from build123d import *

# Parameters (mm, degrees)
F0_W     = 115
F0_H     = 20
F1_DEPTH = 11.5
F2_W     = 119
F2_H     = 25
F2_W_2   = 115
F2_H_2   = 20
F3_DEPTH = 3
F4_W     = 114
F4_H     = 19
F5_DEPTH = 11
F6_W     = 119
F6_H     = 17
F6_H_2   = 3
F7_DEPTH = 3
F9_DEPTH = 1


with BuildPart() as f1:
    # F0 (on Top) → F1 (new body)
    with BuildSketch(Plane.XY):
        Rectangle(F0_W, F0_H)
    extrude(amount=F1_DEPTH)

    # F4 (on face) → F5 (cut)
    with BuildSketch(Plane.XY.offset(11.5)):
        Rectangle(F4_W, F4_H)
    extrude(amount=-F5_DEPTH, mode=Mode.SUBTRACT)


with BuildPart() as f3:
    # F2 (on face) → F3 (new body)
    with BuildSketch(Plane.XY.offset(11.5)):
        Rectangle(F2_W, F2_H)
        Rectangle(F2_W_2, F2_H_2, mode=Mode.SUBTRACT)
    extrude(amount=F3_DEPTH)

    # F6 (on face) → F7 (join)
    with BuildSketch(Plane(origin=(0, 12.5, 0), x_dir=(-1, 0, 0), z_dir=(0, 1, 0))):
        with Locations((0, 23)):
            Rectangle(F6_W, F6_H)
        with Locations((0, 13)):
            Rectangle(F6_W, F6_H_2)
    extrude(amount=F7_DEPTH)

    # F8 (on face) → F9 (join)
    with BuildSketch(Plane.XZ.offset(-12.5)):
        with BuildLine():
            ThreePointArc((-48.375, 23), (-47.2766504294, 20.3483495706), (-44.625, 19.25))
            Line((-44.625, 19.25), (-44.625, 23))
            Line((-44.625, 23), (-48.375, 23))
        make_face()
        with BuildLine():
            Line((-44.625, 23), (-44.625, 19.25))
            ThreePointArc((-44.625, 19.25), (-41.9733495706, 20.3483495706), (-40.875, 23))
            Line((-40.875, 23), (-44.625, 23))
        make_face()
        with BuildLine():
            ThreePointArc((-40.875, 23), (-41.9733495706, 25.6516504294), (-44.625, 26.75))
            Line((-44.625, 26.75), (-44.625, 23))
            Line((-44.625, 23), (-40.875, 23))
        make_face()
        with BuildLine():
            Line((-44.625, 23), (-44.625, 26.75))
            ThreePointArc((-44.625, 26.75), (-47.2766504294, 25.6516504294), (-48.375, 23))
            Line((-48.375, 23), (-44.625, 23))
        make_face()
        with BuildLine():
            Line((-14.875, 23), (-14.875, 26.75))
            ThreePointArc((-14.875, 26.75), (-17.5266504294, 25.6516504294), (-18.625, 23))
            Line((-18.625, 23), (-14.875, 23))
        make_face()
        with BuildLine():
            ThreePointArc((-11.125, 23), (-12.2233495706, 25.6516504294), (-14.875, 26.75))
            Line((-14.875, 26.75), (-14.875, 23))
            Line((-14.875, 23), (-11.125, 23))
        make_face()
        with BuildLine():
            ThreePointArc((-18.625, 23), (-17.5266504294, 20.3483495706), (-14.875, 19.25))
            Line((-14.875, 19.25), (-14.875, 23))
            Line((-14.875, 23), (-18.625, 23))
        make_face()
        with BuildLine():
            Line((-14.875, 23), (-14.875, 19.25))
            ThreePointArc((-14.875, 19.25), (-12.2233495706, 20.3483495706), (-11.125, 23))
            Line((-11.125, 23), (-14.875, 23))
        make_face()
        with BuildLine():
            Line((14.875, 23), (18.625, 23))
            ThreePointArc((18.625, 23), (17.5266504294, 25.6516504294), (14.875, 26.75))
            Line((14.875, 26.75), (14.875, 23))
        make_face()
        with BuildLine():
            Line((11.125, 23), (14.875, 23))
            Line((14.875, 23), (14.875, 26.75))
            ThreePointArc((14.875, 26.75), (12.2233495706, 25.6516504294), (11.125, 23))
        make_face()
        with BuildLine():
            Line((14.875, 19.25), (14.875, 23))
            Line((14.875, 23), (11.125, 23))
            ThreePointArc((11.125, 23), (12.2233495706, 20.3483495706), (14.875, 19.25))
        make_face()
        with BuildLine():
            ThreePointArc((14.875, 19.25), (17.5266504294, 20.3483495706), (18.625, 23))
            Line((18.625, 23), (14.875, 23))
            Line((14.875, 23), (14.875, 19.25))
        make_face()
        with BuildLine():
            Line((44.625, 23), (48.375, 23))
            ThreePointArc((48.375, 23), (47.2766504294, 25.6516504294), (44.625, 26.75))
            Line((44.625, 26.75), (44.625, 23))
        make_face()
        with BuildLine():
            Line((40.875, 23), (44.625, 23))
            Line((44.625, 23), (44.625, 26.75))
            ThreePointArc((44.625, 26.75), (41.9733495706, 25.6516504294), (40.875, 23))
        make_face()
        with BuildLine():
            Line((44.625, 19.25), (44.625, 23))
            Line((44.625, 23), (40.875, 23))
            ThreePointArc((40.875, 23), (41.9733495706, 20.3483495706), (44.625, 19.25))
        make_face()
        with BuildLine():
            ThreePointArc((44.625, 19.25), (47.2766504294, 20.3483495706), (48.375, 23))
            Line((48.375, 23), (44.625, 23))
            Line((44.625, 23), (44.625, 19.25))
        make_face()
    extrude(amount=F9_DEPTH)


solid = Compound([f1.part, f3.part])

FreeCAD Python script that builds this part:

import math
import FreeCAD as App
import Part
import Sketcher


def add_polygon(sketch, points):
    """Adds a closed chain of lines whose ends are joined by coincident constraints."""
    first, n = sketch.GeometryCount, len(points)
    for a, b in zip(points, points[1:] + points[:1]):
        sketch.addGeometry(Part.LineSegment(App.Vector(*a, 0), App.Vector(*b, 0)), False)
    for i in range(n):
        sketch.addConstraint(Sketcher.Constraint("Coincident", first + i, 2, first + (i + 1) % n, 1))

doc = App.newDocument("Part")
body = doc.addObject("PartDesign::Body", "Body")

# Sketch on XY plane
sketch1 = body.newObject("Sketcher::SketchObject", "Sketch")
sketch1.AttachmentSupport = (doc.getObject("XY_Plane"), [""])
sketch1.MapMode = "FlatFace"
add_polygon(sketch1, [(-57.5, 10), (-57.5, -10), (57.5, -10), (57.5, 10)])  # lines 0-3
sketch1.addConstraint(Sketcher.Constraint("Vertical", 0))
sketch1.addConstraint(Sketcher.Constraint("Horizontal", 1))
sketch1.addConstraint(Sketcher.Constraint("Vertical", 2))
sketch1.addConstraint(Sketcher.Constraint("Horizontal", 3))
sketch1.addConstraint(Sketcher.Constraint("Symmetric", 0, 2, 2, 2, -1, 1))
sketch1.addConstraint(Sketcher.Constraint("DistanceX", 1, 1, 1, 2, 115.0))
sketch1.addConstraint(Sketcher.Constraint("DistanceY", 0, 2, 0, 1, 20.0))
pad1 = body.newObject("PartDesign::Pad", "Pad")
pad1.Profile = sketch1
pad1.Length = 11.5

# Sketch on XY plane
sketch2 = body.newObject("Sketcher::SketchObject", "Sketch001")
sketch2.AttachmentSupport = (doc.getObject("XY_Plane"), [""])
sketch2.MapMode = "FlatFace"
sketch2.AttachmentOffset = App.Placement(App.Vector(0, 0, 11.5), App.Rotation())
add_polygon(sketch2, [(-57, 9.5), (-57, -9.5), (57, -9.5), (57, 9.5)])  # lines 0-3
sketch2.addConstraint(Sketcher.Constraint("Vertical", 0))
sketch2.addConstraint(Sketcher.Constraint("Horizontal", 1))
sketch2.addConstraint(Sketcher.Constraint("Vertical", 2))
sketch2.addConstraint(Sketcher.Constraint("Horizontal", 3))
sketch2.addConstraint(Sketcher.Constraint("Symmetric", 0, 2, 2, 2, -1, 1))
sketch2.addConstraint(Sketcher.Constraint("DistanceX", 1, 1, 1, 2, 114.0))
sketch2.addConstraint(Sketcher.Constraint("DistanceY", 0, 2, 0, 1, 19.0))
pocket1 = body.newObject("PartDesign::Pocket", "Pocket")
pocket1.Profile = sketch2
pocket1.Length = 11
body2 = doc.addObject("PartDesign::Body", "Body001")

# Sketch on XY plane
sketch3 = body2.newObject("Sketcher::SketchObject", "Sketch002")
sketch3.AttachmentSupport = (doc.getObject("XY_Plane001"), [""])
sketch3.MapMode = "FlatFace"
sketch3.AttachmentOffset = App.Placement(App.Vector(0, 0, 11.5), App.Rotation())
add_polygon(sketch3, [(-59.5, 12.5), (-59.5, -12.5), (59.5, -12.5), (59.5, 12.5)])  # lines 0-3
add_polygon(sketch3, [(57.5, -10), (-57.5, -10), (-57.5, 10), (57.5, 10)])  # lines 4-7
sketch3.addConstraint(Sketcher.Constraint("Vertical", 0))
sketch3.addConstraint(Sketcher.Constraint("Horizontal", 1))
sketch3.addConstraint(Sketcher.Constraint("Vertical", 2))
sketch3.addConstraint(Sketcher.Constraint("Horizontal", 3))
sketch3.addConstraint(Sketcher.Constraint("Horizontal", 4))
sketch3.addConstraint(Sketcher.Constraint("Vertical", 5))
sketch3.addConstraint(Sketcher.Constraint("Horizontal", 6))
sketch3.addConstraint(Sketcher.Constraint("Vertical", 7))
sketch3.addConstraint(Sketcher.Constraint("Symmetric", 0, 2, 2, 2, -1, 1))
sketch3.addConstraint(Sketcher.Constraint("Symmetric", 4, 2, 6, 2, -1, 1))
sketch3.addConstraint(Sketcher.Constraint("DistanceX", 1, 1, 1, 2, 119.0))
sketch3.addConstraint(Sketcher.Constraint("DistanceX", 4, 2, 4, 1, 115.0))
sketch3.addConstraint(Sketcher.Constraint("DistanceY", 0, 2, 0, 1, 25.0))
sketch3.addConstraint(Sketcher.Constraint("DistanceY", 5, 1, 5, 2, 20.0))
pad2 = body2.newObject("PartDesign::Pad", "Pad001")
pad2.Profile = sketch3
pad2.Length = 3

# Sketch on XZ plane
sketch4 = body2.newObject("Sketcher::SketchObject", "Sketch003")
sketch4.AttachmentSupport = (doc.getObject("XZ_Plane001"), [""])
sketch4.MapMode = "FlatFace"
sketch4.AttachmentOffset = App.Placement(App.Vector(0, 0, -12.5), App.Rotation())
add_polygon(sketch4, [(59.5, 31.5), (59.5, 11.5), (-59.5, 11.5), (-59.5, 31.5)])  # lines 0-3
sketch4.addConstraint(Sketcher.Constraint("Vertical", 0))
sketch4.addConstraint(Sketcher.Constraint("Horizontal", 1))
sketch4.addConstraint(Sketcher.Constraint("Vertical", 2))
sketch4.addConstraint(Sketcher.Constraint("Horizontal", 3))
sketch4.addConstraint(Sketcher.Constraint("DistanceX", 1, 2, 1, 1, 119.0))
sketch4.addConstraint(Sketcher.Constraint("DistanceY", 0, 2, 0, 1, 20.0))
sketch4.addConstraint(Sketcher.Constraint("DistanceX", -1, 1, 0, 2, 59.5))
sketch4.addConstraint(Sketcher.Constraint("DistanceY", -1, 1, 0, 2, 11.5))
pad3 = body2.newObject("PartDesign::Pad", "Pad002")
pad3.Profile = sketch4
pad3.Length = 3
pad3.Reversed = True

# Sketch on XZ plane
sketch5 = body2.newObject("Sketcher::SketchObject", "Sketch004")
sketch5.AttachmentSupport = (doc.getObject("XZ_Plane001"), [""])
sketch5.MapMode = "FlatFace"
sketch5.AttachmentOffset = App.Placement(App.Vector(0, 0, -12.5), App.Rotation())
sketch5.addGeometry(Part.ArcOfCircle(Part.Circle(App.Vector(-44.625, 23, 0), App.Vector(0, 0, 1), 3.75), math.radians(180), math.radians(270)), False)
sketch5.addGeometry(Part.ArcOfCircle(Part.Circle(App.Vector(-44.625, 23, 0), App.Vector(0, 0, 1), 3.75), math.radians(-90), math.radians(0)), False)
sketch5.addGeometry(Part.ArcOfCircle(Part.Circle(App.Vector(-44.625, 23, 0), App.Vector(0, 0, 1), 3.75), math.radians(0), math.radians(90)), False)
sketch5.addGeometry(Part.ArcOfCircle(Part.Circle(App.Vector(-44.625, 23, 0), App.Vector(0, 0, 1), 3.75), math.radians(90), math.radians(180)), False)
sketch5.addGeometry(Part.ArcOfCircle(Part.Circle(App.Vector(-14.875, 23, 0), App.Vector(0, 0, 1), 3.75), math.radians(90), math.radians(180)), False)
sketch5.addGeometry(Part.ArcOfCircle(Part.Circle(App.Vector(-14.875, 23, 0), App.Vector(0, 0, 1), 3.75), math.radians(180), math.radians(270)), False)
sketch5.addGeometry(Part.ArcOfCircle(Part.Circle(App.Vector(-14.875, 23, 0), App.Vector(0, 0, 1), 3.75), math.radians(-90), math.radians(0)), False)
sketch5.addGeometry(Part.ArcOfCircle(Part.Circle(App.Vector(-14.875, 23, 0), App.Vector(0, 0, 1), 3.75), math.radians(0), math.radians(90)), False)
sketch5.addGeometry(Part.ArcOfCircle(Part.Circle(App.Vector(14.875, 23, 0), App.Vector(0, 0, 1), 3.75), math.radians(0), math.radians(90)), False)
sketch5.addGeometry(Part.ArcOfCircle(Part.Circle(App.Vector(14.875, 23, 0), App.Vector(0, 0, 1), 3.75), math.radians(90), math.radians(180)), False)
sketch5.addGeometry(Part.ArcOfCircle(Part.Circle(App.Vector(14.875, 23, 0), App.Vector(0, 0, 1), 3.75), math.radians(180), math.radians(270)), False)
sketch5.addGeometry(Part.ArcOfCircle(Part.Circle(App.Vector(14.875, 23, 0), App.Vector(0, 0, 1), 3.75), math.radians(-90), math.radians(0)), False)
sketch5.addGeometry(Part.ArcOfCircle(Part.Circle(App.Vector(44.625, 23, 0), App.Vector(0, 0, 1), 3.75), math.radians(0), math.radians(90)), False)
sketch5.addGeometry(Part.ArcOfCircle(Part.Circle(App.Vector(44.625, 23, 0), App.Vector(0, 0, 1), 3.75), math.radians(90), math.radians(180)), False)
sketch5.addGeometry(Part.ArcOfCircle(Part.Circle(App.Vector(44.625, 23, 0), App.Vector(0, 0, 1), 3.75), math.radians(180), math.radians(270)), False)
sketch5.addGeometry(Part.ArcOfCircle(Part.Circle(App.Vector(44.625, 23, 0), App.Vector(0, 0, 1), 3.75), math.radians(-90), math.radians(0)), False)
sketch5.addConstraint(Sketcher.Constraint("Tangent", 0, 2, 1, 1))
sketch5.addConstraint(Sketcher.Constraint("Tangent", 1, 2, 2, 1))
sketch5.addConstraint(Sketcher.Constraint("Tangent", 2, 2, 3, 1))
sketch5.addConstraint(Sketcher.Constraint("Tangent", 3, 2, 0, 1))
sketch5.addConstraint(Sketcher.Constraint("Tangent", 4, 2, 5, 1))
sketch5.addConstraint(Sketcher.Constraint("Tangent", 5, 2, 6, 1))
sketch5.addConstraint(Sketcher.Constraint("Tangent", 6, 2, 7, 1))
sketch5.addConstraint(Sketcher.Constraint("Tangent", 7, 2, 4, 1))
sketch5.addConstraint(Sketcher.Constraint("Tangent", 8, 2, 9, 1))
sketch5.addConstraint(Sketcher.Constraint("Tangent", 9, 2, 10, 1))
sketch5.addConstraint(Sketcher.Constraint("Tangent", 10, 2, 11, 1))
sketch5.addConstraint(Sketcher.Constraint("Tangent", 11, 2, 8, 1))
sketch5.addConstraint(Sketcher.Constraint("Tangent", 12, 2, 13, 1))
sketch5.addConstraint(Sketcher.Constraint("Tangent", 13, 2, 14, 1))
sketch5.addConstraint(Sketcher.Constraint("Tangent", 14, 2, 15, 1))
sketch5.addConstraint(Sketcher.Constraint("Tangent", 15, 2, 12, 1))
sketch5.addConstraint(Sketcher.Constraint("Equal", 0, 1))
sketch5.addConstraint(Sketcher.Constraint("Equal", 3, 4))
sketch5.addConstraint(Sketcher.Constraint("Equal", 4, 5))
sketch5.addConstraint(Sketcher.Constraint("Equal", 7, 8))
sketch5.addConstraint(Sketcher.Constraint("Equal", 8, 9))
sketch5.addConstraint(Sketcher.Constraint("Equal", 11, 12))
sketch5.addConstraint(Sketcher.Constraint("Equal", 12, 13))
sketch5.addConstraint(Sketcher.Constraint("Symmetric", 4, 3, 8, 3, -2))
sketch5.addConstraint(Sketcher.Constraint("Symmetric", 0, 3, 12, 3, -2))
sketch5.addConstraint(Sketcher.Constraint("Horizontal", 3, 3, 4, 3))
sketch5.addConstraint(Sketcher.Constraint("Horizontal", 15, 3, 1, 2))
sketch5.addConstraint(Sketcher.Constraint("Horizontal", 1, 2, 3, 2))
sketch5.addConstraint(Sketcher.Constraint("Horizontal", 3, 2, 4, 2))
sketch5.addConstraint(Sketcher.Constraint("Horizontal", 4, 2, 6, 2))
sketch5.addConstraint(Sketcher.Constraint("Horizontal", 6, 2, 9, 2))
sketch5.addConstraint(Sketcher.Constraint("Horizontal", 9, 2, 11, 2))
sketch5.addConstraint(Sketcher.Constraint("Horizontal", 11, 2, 13, 2))
sketch5.addConstraint(Sketcher.Constraint("Horizontal", 13, 2, 15, 2))
sketch5.addConstraint(Sketcher.Constraint("Vertical", 3, 3, 0, 2))
sketch5.addConstraint(Sketcher.Constraint("Vertical", 0, 2, 2, 2))
sketch5.addConstraint(Sketcher.Constraint("Vertical", 7, 3, 5, 2))
sketch5.addConstraint(Sketcher.Constraint("Vertical", 5, 2, 7, 2))
sketch5.addConstraint(Sketcher.Constraint("Vertical", 11, 3, 8, 2))
sketch5.addConstraint(Sketcher.Constraint("Vertical", 8, 2, 10, 2))
sketch5.addConstraint(Sketcher.Constraint("Vertical", 15, 3, 12, 2))
sketch5.addConstraint(Sketcher.Constraint("Vertical", 12, 2, 14, 2))
sketch5.addConstraint(Sketcher.Constraint("Radius", 0, 3.75))
sketch5.addConstraint(Sketcher.Constraint("DistanceY", -1, 1, 0, 3, 23.0))
sketch5.addConstraint(Sketcher.Constraint("DistanceX", 6, 2, 8, 2, 26.0))
sketch5.addConstraint(Sketcher.Constraint("DistanceX", 11, 2, 12, 2, 26.0))
pad4 = body2.newObject("PartDesign::Pad", "Pad003")
pad4.Profile = sketch5
pad4.Length = 1

doc.recompute()
